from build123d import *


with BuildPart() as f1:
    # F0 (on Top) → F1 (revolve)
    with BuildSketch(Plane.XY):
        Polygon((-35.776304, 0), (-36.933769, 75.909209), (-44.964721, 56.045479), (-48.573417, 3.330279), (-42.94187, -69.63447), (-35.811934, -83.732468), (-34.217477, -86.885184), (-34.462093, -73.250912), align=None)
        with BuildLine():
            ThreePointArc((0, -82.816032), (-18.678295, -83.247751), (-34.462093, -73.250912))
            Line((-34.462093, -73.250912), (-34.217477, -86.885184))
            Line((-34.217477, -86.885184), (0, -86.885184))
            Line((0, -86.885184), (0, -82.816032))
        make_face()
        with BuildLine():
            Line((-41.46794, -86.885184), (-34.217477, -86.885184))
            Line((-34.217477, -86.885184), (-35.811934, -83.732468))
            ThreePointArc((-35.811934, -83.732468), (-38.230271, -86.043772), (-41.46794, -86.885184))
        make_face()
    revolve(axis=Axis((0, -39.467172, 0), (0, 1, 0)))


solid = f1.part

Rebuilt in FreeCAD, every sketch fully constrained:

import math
import FreeCAD as App
import Part
import Sketcher

V = App.Vector

doc = App.newDocument("Part")
body = doc.addObject("PartDesign::Body", "Body")

# Sketch on XY plane
sketch1 = doc.addObject("Sketcher::SketchObject", "Sketch")
body.addObject(sketch1)
sketch1.AttachmentSupport = (doc.XY_Plane, [""])
sketch1.MapMode = "FlatFace"
sketch1.addGeometry([
    Part.LineSegment(V(-35.776304, 0, 0), V(-36.933769, 75.909209, 0)),  # 0
    Part.LineSegment(V(-36.933769, 75.909209, 0), V(-44.964721, 56.045479, 0)),  # 1
    Part.LineSegment(V(-44.964721, 56.045479, 0), V(-48.573417, 3.330279, 0)),  # 2
    Part.LineSegment(V(-48.573417, 3.330279, 0), V(-42.94187, -69.63447, 0)),  # 3
    Part.LineSegment(V(-42.94187, -69.63447, 0), V(-35.811934, -83.732468, 0)),  # 4
    Part.ArcOfCircle(Part.Circle(V(-41.467943, -80.235353, 0), V(0, 0, 1), 6.649831), math.radians(-89.999972), math.radians(-31.728536)),  # 5
    Part.LineSegment(V(-41.46794, -86.885184, 0), V(0, -86.885184, 0)),  # 6
    Part.LineSegment(V(0, -86.885184, 0), V(0, -82.816032, 0)),  # 7
    Part.ArcOfCircle(Part.Circle(V(-10.052474, -52.169853, 0), V(0, 0, 1), 32.25276), math.radians(-139.184883), math.radians(-71.839619)),  # 8
    Part.LineSegment(V(-34.462093, -73.250912, 0), V(-35.776304, 0, 0)),  # 9
], False)
sketch1.addConstraint([
    Sketcher.Constraint("Coincident", 0, 2, 1, 1),
    Sketcher.Constraint("Coincident", 1, 2, 2, 1),
    Sketcher.Constraint("Coincident", 2, 2, 3, 1),
    Sketcher.Constraint("Coincident", 3, 2, 4, 1),
    Sketcher.Constraint("Coincident", 4, 2, 5, 2),
    Sketcher.Constraint("Tangent", 5, 1, 6, 1),
    Sketcher.Constraint("Coincident", 6, 2, 7, 1),
    Sketcher.Constraint("Coincident", 7, 2, 8, 2),
    Sketcher.Constraint("Coincident", 8, 1, 9, 1),
    Sketcher.Constraint("Coincident", 9, 2, 0, 1),
    Sketcher.Constraint("Horizontal", 6),
    Sketcher.Constraint("Vertical", 7),
    Sketcher.Constraint("PointOnObject", 6, 2, -2),
    Sketcher.Constraint("PointOnObject", 9, 2, -1),
    Sketcher.Constraint("Radius", 5, 6.649831),
    Sketcher.Constraint("Radius", 8, 32.25276),
    Sketcher.Constraint("DistanceY", 4, 2, 3, 2, 14.097998),
    Sketcher.Constraint("Distance", 9, 73.2627),
    Sketcher.Constraint("DistanceX", 6, 1, 6, 2, 41.46794),
    Sketcher.Constraint("DistanceY", 7, 1, 7, 2, 4.069152),
    Sketcher.Constraint("DistanceY", 5, 3, 8, 3, 28.0655),
    Sketcher.Constraint("DistanceY", 2, 2, 1, 2, 52.7152),
    Sketcher.Constraint("DistanceX", 3, 2, 0, 2, 6.008101),
    Sketcher.Constraint("DistanceX", 0, 2, -1, 1, 36.933769),
    Sketcher.Constraint("DistanceY", -1, 1, 0, 2, 75.909209),
    Sketcher.Constraint("DistanceX", 1, 2, -1, 1, 44.964721),
    Sketcher.Constraint("DistanceY", -1, 1, 1, 2, 56.045479),
    Sketcher.Constraint("DistanceY", 3, 2, -1, 1, 69.63447),
    Sketcher.Constraint("DistanceY", 8, 3, 0, 2, 128.079062),
    Sketcher.Constraint("DistanceX", 2, 2, 0, 2, 11.639648),
    Sketcher.Constraint("DistanceX", 9, 2, 8, 3, 25.72383),
])
revolution = doc.addObject("PartDesign::Revolution", "Revolution")
body.addObject(revolution)
revolution.Profile = sketch1
revolution.ReferenceAxis = (sketch1, ["V_Axis"])
revolution.Angle = 360

doc.recompute()
